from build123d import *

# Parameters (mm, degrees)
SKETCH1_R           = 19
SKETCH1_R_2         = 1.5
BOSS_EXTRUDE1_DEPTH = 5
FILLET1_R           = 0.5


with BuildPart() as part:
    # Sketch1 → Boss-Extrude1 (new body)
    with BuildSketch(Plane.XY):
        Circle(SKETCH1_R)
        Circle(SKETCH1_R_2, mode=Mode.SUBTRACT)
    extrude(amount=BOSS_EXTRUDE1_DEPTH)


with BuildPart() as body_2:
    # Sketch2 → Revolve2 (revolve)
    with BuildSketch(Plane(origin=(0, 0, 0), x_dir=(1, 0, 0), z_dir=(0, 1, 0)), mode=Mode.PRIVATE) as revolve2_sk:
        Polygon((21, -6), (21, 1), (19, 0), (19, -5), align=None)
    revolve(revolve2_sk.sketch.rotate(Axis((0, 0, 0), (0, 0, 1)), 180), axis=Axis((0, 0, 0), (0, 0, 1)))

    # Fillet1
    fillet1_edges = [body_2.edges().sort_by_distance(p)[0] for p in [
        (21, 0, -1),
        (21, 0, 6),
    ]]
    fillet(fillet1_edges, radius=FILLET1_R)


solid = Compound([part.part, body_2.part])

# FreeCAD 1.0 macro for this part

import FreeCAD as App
import Part
import Sketcher
from FreeCAD import Vector
Q = App.Units.Quantity


def edges_at(feature, points):
    """Names of the edges that pass closest to the given points."""
    edges = feature.Shape.Edges
    near = lambda p: min(range(len(edges)), key=lambda i: edges[i].distToShape(Part.Vertex(*p))[0])
    return sorted({f"Edge{near(p) + 1}" for p in points})

doc = App.newDocument("Part")
body = doc.addObject("PartDesign::Body", "Body")

sketch1 = doc.addObject("Sketcher::SketchObject", "Sketch")
body.addObject(sketch1)
sketch1.AttachmentSupport = (doc.XY_Plane, [""])
sketch1.MapMode = "FlatFace"
sketch1.addGeometry([
    Part.Circle(Vector(0, 0, 0), Vector(0, 0, 1), 19),
    Part.Circle(Vector(0, 0, 0), Vector(0, 0, 1), 1.5),
], False)
sketch1.addConstraint([
    Sketcher.Constraint("Coincident", 0, 3, -1, 1),
    Sketcher.Constraint("Coincident", 1, 3, -1, 1),
    Sketcher.Constraint("Diameter", 0, Q("38 mm")),
    Sketcher.Constraint("Diameter", 1, Q("3 mm")),
])
pad1 = doc.addObject("PartDesign::Pad", "Pad")
body.addObject(pad1)
pad1.Profile = sketch1
pad1.Length = 5
body2 = doc.addObject("PartDesign::Body", "Body001")

sketch2 = doc.addObject("Sketcher::SketchObject", "Sketch001")
body2.addObject(sketch2)
sketch2.AttachmentSupport = (doc.getObject("XZ_Plane001"), [""])
sketch2.MapMode = "FlatFace"
sketch2.addGeometry([
    Part.LineSegment(Vector(21, 6, 0), Vector(21, -1, 0)),
    Part.LineSegment(Vector(21, -1, 0), Vector(19, 0, 0)),
    Part.LineSegment(Vector(19, 0, 0), Vector(19, 5, 0)),
    Part.LineSegment(Vector(19, 5, 0), Vector(21, 6, 0)),
], False)
sketch2.addConstraint([
    Sketcher.Constraint("Coincident", 0, 2, 1, 1),
    Sketcher.Constraint("Coincident", 1, 2, 2, 1),
    Sketcher.Constraint("Coincident", 2, 2, 3, 1),
    Sketcher.Constraint("Coincident", 3, 2, 0, 1),
    Sketcher.Constraint("Vertical", 0),
    Sketcher.Constraint("Vertical", 2),
    Sketcher.Constraint("PointOnObject", 1, 2, -1),
    Sketcher.Constraint("Equal", 1, 3),
    Sketcher.Constraint("DistanceY", 0, 2, 0, 1, Q("7 mm")),
    Sketcher.Constraint("DistanceY", 2, 1, 2, 2, Q("5 mm")),
    Sketcher.Constraint("DistanceX", -1, 1, 0, 2, Q("21 mm")),
    Sketcher.Constraint("DistanceX", -1, 1, 1, 2, Q("19 mm")),
])
revolution = doc.addObject("PartDesign::Revolution", "Revolution")
body2.addObject(revolution)
revolution.Profile = sketch2
revolution.ReferenceAxis = (sketch2, ["V_Axis"])
revolution.Angle = 360
doc.recompute()

fillet = doc.addObject("PartDesign::Fillet", "Fillet")
body2.addObject(fillet)
fillet.Base = (revolution, edges_at(revolution, [(21, 0, -1), (21, 0, 6)]))
fillet.Radius = 0.5

doc.recompute()
